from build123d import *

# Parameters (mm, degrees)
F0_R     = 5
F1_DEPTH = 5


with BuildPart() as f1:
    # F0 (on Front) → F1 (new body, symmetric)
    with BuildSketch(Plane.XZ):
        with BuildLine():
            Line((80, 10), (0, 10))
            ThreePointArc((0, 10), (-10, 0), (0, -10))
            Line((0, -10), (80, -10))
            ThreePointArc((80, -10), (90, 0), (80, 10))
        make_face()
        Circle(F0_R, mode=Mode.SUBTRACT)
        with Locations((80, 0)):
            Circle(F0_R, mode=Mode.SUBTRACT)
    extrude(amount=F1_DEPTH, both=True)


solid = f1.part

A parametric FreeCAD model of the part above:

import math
import FreeCAD as App
import Part
import Sketcher

V = App.Vector
Q = App.Units.Quantity

doc = App.newDocument("Part")
body = doc.addObject("PartDesign::Body", "Body")

# Sketch on XZ plane
sketch1 = doc.addObject("Sketcher::SketchObject", "Sketch")
body.addObject(sketch1)
sketch1.AttachmentSupport = (doc.XZ_Plane, [""])
sketch1.MapMode = "FlatFace"
sketch1.addGeometry([
    Part.LineSegment(V(80, 10, 0), V(0, 10, 0)),  # 0
    Part.ArcOfCircle(Part.Circle(V(0, 0, 0), V(0, 0, 1), 10), math.radians(90), math.radians(270)),  # 1
    Part.LineSegment(V(0, -10, 0), V(80, -10, 0)),  # 2
    Part.ArcOfCircle(Part.Circle(V(80, 0, 0), V(0, 0, 1), 10), math.radians(-90), math.radians(90)),  # 3
    Part.Circle(V(0, 0, 0), V(0, 0, 1), 5),  # 4
    Part.Circle(V(80, 0, 0), V(0, 0, 1), 5),  # 5
], False)
sketch1.addConstraint([
    Sketcher.Constraint("Tangent", 0, 2, 1, 1),
    Sketcher.Constraint("Tangent", 1, 2, 2, 1),
    Sketcher.Constraint("Tangent", 2, 2, 3, 1),
    Sketcher.Constraint("Tangent", 3, 2, 0, 1),
    Sketcher.Constraint("Horizontal", 0),
    Sketcher.Constraint("Horizontal", 2),
    Sketcher.Constraint("Coincident", 1, 3, -1, 1),
    Sketcher.Constraint("Coincident", 4, 3, -1, 1),
    Sketcher.Constraint("Coincident", 5, 3, 3, 3),
    Sketcher.Constraint("Equal", 4, 5),
    Sketcher.Constraint("Diameter", 4, Q("10 mm")),
    Sketcher.Constraint("Radius", 1, Q("10 mm")),
    Sketcher.Constraint("DistanceX", 0, 2, 0, 1, Q("80 mm")),
])
pad1 = doc.addObject("PartDesign::Pad", "Pad")
body.addObject(pad1)
pad1.Profile = sketch1
pad1.Length = 10
pad1.Midplane = True

doc.recompute()
